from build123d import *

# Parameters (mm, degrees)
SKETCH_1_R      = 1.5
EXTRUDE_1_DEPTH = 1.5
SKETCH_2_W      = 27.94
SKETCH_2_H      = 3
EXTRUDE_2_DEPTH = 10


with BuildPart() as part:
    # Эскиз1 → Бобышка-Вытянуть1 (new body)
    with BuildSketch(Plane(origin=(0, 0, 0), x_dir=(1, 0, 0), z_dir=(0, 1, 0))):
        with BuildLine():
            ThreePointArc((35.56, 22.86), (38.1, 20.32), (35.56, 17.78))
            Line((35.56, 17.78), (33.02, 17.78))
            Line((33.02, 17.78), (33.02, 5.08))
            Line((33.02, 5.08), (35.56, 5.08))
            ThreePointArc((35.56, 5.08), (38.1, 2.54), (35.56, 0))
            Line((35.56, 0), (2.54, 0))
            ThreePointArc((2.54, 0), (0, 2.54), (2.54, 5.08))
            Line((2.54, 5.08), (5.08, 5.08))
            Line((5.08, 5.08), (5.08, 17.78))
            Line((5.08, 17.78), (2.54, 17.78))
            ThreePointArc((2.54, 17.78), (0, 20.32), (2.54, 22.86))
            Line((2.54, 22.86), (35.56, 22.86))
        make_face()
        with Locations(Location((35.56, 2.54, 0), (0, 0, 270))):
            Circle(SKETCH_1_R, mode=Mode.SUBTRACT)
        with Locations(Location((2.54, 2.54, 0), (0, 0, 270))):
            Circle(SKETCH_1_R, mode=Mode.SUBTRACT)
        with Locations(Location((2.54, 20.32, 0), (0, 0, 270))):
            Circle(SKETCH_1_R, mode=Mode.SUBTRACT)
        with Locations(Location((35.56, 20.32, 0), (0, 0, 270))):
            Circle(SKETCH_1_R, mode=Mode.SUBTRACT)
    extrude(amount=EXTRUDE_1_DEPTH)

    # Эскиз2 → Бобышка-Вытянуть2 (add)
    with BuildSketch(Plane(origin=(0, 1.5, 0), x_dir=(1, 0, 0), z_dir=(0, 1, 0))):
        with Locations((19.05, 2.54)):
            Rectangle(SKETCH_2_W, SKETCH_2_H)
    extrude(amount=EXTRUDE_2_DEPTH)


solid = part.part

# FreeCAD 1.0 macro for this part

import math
import FreeCAD as App
import Part
import Sketcher

V = App.Vector
Q = App.Units.Quantity

doc = App.newDocument("Part")
body = doc.addObject("PartDesign::Body", "Body")

# Sketch on XZ plane
sketch1 = body.newObject("Sketcher::SketchObject", "Sketch")
sketch1.AttachmentSupport = (doc.getObject("XZ_Plane"), [""])
sketch1.MapMode = "FlatFace"
sketch1.addGeometry([
    Part.ArcOfCircle(Part.Circle(V(35.6, -20.3, 0), V(0, 0, 1), 2.5), math.radians(-90), math.radians(90)),  # 0
    Part.LineSegment(V(35.6, -22.9, 0), V(2.5, -22.9, 0)),  # 1
    Part.ArcOfCircle(Part.Circle(V(2.5, -20.3, 0), V(0, 0, 1), 2.5), math.radians(90), math.radians(270)),  # 2
    Part.LineSegment(V(2.5, -17.8, 0), V(5.1, -17.8, 0)),  # 3
    Part.LineSegment(V(5.1, -17.8, 0), V(5.1, -5.1, 0)),  # 4
    Part.LineSegment(V(5.1, -5.1, 0), V(2.5, -5.1, 0)),  # 5
    Part.ArcOfCircle(Part.Circle(V(2.5, -2.5, 0), V(0, 0, 1), 2.5), math.radians(90), math.radians(270)),  # 6
    Part.LineSegment(V(2.5, 0, 0), V(35.6, 0, 0)),  # 7
    Part.ArcOfCircle(Part.Circle(V(35.6, -2.5, 0), V(0, 0, 1), 2.5), math.radians(-90), math.radians(90)),  # 8
    Part.LineSegment(V(35.6, -5.1, 0), V(33, -5.1, 0)),  # 9
    Part.LineSegment(V(33, -5.1, 0), V(33, -17.8, 0)),  # 10
    Part.LineSegment(V(33, -17.8, 0), V(35.6, -17.8, 0)),  # 11
    Part.Circle(V(35.6, -2.5, 0), V(0, 0, 1), 1.5),  # 12
    Part.Circle(V(2.5, -2.5, 0), V(0, 0, 1), 1.5),  # 13
    Part.Circle(V(35.6, -20.3, 0), V(0, 0, 1), 1.5),  # 14
    Part.Circle(V(2.5, -20.3, 0), V(0, 0, 1), 1.5),  # 15
], False)
sketch1.addConstraint([
    Sketcher.Constraint("Tangent", 0, 1, 1, 1),
    Sketcher.Constraint("Tangent", 1, 2, 2, 2),
    Sketcher.Constraint("Tangent", 2, 1, 3, 1),
    Sketcher.Constraint("Coincident", 3, 2, 4, 1),
    Sketcher.Constraint("Coincident", 4, 2, 5, 1),
    Sketcher.Constraint("Tangent", 5, 2, 6, 2),
    Sketcher.Constraint("Tangent", 6, 1, 7, 1),
    Sketcher.Constraint("Tangent", 7, 2, 8, 2),
    Sketcher.Constraint("Tangent", 8, 1, 9, 1),
    Sketcher.Constraint("Coincident", 9, 2, 10, 1),
    Sketcher.Constraint("Coincident", 10, 2, 11, 1),
    Sketcher.Constraint("Tangent", 11, 2, 0, 2),
    Sketcher.Constraint("Horizontal", 1),
    Sketcher.Constraint("Horizontal", 3),
    Sketcher.Constraint("Vertical", 4),
    Sketcher.Constraint("Horizontal", 5),
    Sketcher.Constraint("Horizontal", 7),
    Sketcher.Constraint("Horizontal", 9),
    Sketcher.Constraint("Vertical", 10),
    Sketcher.Constraint("Horizontal", 11),
    Sketcher.Constraint("Coincident", 12, 3, 8, 3),
    Sketcher.Constraint("Coincident", 13, 3, 6, 3),
    Sketcher.Constraint("Coincident", 14, 3, 0, 3),
    Sketcher.Constraint("Coincident", 15, 3, 2, 3),
    Sketcher.Constraint("Equal", 0, 2),
    Sketcher.Constraint("Equal", 2, 6),
    Sketcher.Constraint("Equal", 6, 8),
    Sketcher.Constraint("Equal", 12, 13),
    Sketcher.Constraint("Equal", 13, 14),
    Sketcher.Constraint("Equal", 14, 15),
    Sketcher.Constraint("PointOnObject", 6, 1, -1),
    Sketcher.Constraint("Vertical", 2, 3, 6, 3),
    Sketcher.Constraint("Vertical", 0, 3, 8, 3),
    Sketcher.Constraint("Equal", 5, 9),
    Sketcher.Constraint("Radius", 0, Q("0.1 in")),
    Sketcher.Constraint("DistanceX", 1, 2, 1, 1, Q("1.3 in")),
    Sketcher.Constraint("DistanceX", 3, 1, 3, 2, Q("0.1 in")),
    Sketcher.Constraint("DistanceY", 4, 1, 4, 2, Q("0.5 in")),
    Sketcher.Constraint("DistanceX", -1, 1, 0, 3, Q("1.4 in")),
    Sketcher.Constraint("Diameter", 12, Q("3 mm")),
])
pad1 = body.newObject("PartDesign::Pad", "Pad")
pad1.Profile = sketch1
pad1.Length = 1.5
pad1.Reversed = True

# Sketch on XZ plane
sketch2 = body.newObject("Sketcher::SketchObject", "Sketch001")
sketch2.AttachmentSupport = (doc.getObject("XZ_Plane"), [""])
sketch2.MapMode = "FlatFace"
sketch2.AttachmentOffset = App.Placement(V(0, 0, -1.5), App.Rotation())
sketch2.addGeometry([
    Part.LineSegment(V(5.1, -4, 0), V(5.1, -1, 0)),
    Part.LineSegment(V(5.1, -1, 0), V(33, -1, 0)),
    Part.LineSegment(V(33, -1, 0), V(33, -4, 0)),
    Part.LineSegment(V(33, -4, 0), V(5.1, -4, 0)),
], False)
sketch2.addConstraint([
    Sketcher.Constraint("Coincident", 0, 2, 1, 1),
    Sketcher.Constraint("Coincident", 1, 2, 2, 1),
    Sketcher.Constraint("Coincident", 2, 2, 3, 1),
    Sketcher.Constraint("Coincident", 3, 2, 0, 1),
    Sketcher.Constraint("Vertical", 0),
    Sketcher.Constraint("Horizontal", 1),
    Sketcher.Constraint("Vertical", 2),
    Sketcher.Constraint("Horizontal", 3),
    Sketcher.Constraint("DistanceX", 1, 1, 1, 2, Q("1.1 in")),
    Sketcher.Constraint("DistanceX", -1, 1, 0, 2, Q("0.2 in")),
    Sketcher.Constraint("DistanceY", 0, 1, 0, 2, Q("3 mm")),
    Sketcher.Constraint("DistanceY", 0, 2, -1, 1, Q("1.04 mm")),
])
pad2 = body.newObject("PartDesign::Pad", "Pad001")
pad2.Profile = sketch2
pad2.Length = 10
pad2.Reversed = True

doc.recompute()
